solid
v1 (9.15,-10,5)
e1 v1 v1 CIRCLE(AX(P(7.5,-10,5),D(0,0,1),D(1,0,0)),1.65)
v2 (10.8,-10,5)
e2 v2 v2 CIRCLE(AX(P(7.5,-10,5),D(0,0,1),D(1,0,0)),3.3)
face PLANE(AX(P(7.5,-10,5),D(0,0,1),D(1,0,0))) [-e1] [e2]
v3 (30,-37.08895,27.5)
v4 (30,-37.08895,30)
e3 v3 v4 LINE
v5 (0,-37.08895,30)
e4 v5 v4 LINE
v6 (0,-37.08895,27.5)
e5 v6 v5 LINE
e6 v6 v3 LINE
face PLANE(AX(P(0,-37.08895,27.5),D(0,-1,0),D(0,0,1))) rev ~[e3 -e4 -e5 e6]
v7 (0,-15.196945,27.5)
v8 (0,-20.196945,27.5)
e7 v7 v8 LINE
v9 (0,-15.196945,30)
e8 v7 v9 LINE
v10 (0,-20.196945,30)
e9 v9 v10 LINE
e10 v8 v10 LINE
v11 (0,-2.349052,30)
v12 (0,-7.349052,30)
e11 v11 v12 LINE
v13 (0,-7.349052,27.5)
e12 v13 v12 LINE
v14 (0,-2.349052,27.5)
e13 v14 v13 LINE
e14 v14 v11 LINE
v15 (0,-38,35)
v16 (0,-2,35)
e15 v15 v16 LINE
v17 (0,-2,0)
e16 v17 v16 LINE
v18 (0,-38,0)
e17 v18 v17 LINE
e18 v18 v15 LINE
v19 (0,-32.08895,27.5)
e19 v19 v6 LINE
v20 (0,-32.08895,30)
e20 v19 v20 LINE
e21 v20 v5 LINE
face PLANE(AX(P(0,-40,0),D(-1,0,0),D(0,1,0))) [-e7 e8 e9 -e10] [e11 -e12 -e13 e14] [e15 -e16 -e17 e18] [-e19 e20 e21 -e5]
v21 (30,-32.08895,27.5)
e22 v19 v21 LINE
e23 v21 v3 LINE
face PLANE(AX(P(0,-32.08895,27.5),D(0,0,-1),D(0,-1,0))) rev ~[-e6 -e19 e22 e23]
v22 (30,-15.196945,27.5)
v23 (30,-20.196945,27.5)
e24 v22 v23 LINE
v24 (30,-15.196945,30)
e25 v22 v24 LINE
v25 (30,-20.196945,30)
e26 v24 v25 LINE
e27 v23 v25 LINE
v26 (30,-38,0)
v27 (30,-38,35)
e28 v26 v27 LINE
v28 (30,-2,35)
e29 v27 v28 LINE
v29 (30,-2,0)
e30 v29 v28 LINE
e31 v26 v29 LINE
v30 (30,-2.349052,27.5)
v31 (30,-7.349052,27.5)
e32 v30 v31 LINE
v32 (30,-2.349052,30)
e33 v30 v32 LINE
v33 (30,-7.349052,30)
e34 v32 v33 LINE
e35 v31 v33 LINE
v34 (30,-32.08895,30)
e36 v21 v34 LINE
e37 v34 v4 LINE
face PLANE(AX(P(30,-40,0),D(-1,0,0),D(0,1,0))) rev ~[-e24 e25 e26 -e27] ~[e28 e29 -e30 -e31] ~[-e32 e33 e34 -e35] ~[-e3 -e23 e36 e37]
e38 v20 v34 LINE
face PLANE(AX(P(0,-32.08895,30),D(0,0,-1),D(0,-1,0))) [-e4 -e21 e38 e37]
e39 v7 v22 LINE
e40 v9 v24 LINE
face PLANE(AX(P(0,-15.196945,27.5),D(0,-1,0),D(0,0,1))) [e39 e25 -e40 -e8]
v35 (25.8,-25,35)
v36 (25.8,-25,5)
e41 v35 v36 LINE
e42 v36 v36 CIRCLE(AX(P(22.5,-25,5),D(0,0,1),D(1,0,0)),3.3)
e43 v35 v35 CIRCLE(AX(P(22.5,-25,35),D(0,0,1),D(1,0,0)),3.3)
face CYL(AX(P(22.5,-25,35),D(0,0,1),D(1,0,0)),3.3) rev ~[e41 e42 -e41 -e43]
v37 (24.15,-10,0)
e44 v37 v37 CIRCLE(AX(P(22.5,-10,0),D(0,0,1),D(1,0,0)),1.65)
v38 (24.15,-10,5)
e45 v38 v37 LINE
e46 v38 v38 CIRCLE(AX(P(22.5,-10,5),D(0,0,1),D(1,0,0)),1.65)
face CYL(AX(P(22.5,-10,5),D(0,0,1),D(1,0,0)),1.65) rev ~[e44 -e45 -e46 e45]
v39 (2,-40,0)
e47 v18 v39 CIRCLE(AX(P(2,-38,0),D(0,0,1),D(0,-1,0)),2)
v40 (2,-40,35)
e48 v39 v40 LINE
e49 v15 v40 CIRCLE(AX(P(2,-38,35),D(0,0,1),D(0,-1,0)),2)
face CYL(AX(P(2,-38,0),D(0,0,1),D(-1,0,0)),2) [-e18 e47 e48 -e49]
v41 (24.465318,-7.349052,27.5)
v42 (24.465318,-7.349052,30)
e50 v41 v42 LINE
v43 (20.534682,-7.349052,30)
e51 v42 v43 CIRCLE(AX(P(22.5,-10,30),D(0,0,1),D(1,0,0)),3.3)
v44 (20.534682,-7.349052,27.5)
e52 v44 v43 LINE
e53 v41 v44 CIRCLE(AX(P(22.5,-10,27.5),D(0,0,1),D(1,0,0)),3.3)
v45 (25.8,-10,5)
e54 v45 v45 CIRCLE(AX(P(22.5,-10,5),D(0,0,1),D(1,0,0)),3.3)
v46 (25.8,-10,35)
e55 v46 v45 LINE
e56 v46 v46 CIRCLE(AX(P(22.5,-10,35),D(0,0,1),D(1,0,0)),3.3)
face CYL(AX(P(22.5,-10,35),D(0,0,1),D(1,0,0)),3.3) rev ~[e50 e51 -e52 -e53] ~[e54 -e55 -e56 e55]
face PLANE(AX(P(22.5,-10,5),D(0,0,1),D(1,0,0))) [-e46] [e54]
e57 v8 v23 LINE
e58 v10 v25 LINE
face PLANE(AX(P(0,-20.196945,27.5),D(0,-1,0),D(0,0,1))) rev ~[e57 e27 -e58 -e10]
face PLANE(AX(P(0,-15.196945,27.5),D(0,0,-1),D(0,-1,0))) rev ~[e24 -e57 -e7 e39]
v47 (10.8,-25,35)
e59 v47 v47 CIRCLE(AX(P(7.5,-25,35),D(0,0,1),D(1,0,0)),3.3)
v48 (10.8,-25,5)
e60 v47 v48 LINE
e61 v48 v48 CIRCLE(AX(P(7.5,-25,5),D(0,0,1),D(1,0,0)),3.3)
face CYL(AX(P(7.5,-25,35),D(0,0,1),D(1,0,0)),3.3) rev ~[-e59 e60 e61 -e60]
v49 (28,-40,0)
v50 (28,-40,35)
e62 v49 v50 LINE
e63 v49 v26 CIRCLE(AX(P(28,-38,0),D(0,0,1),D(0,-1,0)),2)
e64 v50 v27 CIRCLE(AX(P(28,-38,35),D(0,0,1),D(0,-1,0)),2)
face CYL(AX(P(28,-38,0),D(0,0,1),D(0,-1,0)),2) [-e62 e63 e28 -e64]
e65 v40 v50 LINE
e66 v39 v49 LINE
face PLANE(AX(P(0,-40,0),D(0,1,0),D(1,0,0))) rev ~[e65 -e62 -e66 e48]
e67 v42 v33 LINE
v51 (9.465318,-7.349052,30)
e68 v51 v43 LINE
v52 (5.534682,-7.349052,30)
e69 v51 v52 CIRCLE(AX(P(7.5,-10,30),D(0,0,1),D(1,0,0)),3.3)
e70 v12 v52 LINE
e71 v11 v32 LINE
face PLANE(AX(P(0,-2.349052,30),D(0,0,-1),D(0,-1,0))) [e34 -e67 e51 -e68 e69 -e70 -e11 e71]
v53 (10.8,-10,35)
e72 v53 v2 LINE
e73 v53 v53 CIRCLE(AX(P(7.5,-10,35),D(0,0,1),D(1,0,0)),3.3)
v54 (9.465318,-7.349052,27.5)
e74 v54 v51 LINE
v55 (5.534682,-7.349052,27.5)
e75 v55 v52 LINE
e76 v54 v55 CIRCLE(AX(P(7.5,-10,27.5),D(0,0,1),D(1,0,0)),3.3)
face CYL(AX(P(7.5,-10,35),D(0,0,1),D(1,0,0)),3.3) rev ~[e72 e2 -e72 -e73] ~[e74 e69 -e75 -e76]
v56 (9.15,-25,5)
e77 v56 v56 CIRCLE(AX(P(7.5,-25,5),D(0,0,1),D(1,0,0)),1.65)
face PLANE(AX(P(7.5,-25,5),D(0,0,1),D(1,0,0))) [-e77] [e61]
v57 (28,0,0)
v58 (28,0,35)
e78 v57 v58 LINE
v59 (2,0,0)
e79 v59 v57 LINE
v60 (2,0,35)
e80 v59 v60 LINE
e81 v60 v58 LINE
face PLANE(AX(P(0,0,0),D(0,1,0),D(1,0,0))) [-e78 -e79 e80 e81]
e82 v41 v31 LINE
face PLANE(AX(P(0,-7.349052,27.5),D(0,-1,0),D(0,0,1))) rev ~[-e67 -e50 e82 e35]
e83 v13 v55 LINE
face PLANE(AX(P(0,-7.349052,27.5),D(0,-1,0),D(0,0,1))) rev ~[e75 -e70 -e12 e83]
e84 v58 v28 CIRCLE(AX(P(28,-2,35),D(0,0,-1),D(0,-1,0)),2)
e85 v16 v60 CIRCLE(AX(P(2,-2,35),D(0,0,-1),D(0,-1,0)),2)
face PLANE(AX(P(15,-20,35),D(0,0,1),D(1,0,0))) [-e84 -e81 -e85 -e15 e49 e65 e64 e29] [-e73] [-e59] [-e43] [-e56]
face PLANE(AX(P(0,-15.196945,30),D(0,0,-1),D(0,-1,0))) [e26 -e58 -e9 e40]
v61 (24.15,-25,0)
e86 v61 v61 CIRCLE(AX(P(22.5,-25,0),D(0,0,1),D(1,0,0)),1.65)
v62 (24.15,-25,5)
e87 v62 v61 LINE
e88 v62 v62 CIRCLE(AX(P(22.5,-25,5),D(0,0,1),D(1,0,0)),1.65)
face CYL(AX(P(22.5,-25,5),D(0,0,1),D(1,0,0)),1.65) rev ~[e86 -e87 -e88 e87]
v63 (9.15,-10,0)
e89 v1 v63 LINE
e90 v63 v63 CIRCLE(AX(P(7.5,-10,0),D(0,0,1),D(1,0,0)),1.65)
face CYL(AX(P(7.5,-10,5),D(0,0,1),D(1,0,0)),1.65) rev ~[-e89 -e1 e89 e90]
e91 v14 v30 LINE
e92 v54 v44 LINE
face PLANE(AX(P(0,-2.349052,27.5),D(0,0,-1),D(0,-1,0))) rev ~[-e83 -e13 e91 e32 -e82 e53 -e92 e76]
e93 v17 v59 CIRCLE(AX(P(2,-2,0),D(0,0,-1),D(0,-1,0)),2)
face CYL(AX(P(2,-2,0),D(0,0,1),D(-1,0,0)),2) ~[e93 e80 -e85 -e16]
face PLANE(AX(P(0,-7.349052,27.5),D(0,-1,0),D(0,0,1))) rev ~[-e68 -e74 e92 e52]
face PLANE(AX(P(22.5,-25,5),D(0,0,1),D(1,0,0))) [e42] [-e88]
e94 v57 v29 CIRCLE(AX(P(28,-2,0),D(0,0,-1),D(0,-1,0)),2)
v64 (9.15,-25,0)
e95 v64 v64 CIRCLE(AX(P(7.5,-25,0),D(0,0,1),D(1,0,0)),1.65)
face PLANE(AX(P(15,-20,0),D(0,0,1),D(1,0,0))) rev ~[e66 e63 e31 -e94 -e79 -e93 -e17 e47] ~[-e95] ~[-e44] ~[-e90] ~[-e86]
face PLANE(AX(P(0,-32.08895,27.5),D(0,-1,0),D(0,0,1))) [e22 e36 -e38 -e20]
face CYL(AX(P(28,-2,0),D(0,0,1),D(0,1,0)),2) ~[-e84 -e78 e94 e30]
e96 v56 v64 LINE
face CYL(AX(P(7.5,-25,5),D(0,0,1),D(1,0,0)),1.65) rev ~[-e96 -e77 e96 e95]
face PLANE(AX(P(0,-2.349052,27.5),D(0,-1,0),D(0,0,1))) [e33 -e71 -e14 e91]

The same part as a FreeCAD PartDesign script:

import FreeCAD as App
import Part
import Sketcher
from FreeCAD import Vector
Q = App.Units.Quantity


def edges_at(feature, points):
    """Names of the edges that pass closest to the given points."""
    edges = feature.Shape.Edges
    near = lambda p: min(range(len(edges)), key=lambda i: edges[i].distToShape(Part.Vertex(*p))[0])
    return sorted({f"Edge{near(p) + 1}" for p in points})

doc = App.newDocument("Part")
body = doc.addObject("PartDesign::Body", "Body")

sketch1 = doc.addObject("Sketcher::SketchObject", "Sketch")
body.addObject(sketch1)
sketch1.AttachmentSupport = (doc.XY_Plane, [""])
sketch1.MapMode = "FlatFace"
sketch1.addGeometry([
    Part.LineSegment(Vector(0, 0, 0), Vector(0, -40, 0)),
    Part.LineSegment(Vector(0, -40, 0), Vector(30, -40, 0)),
    Part.LineSegment(Vector(30, -40, 0), Vector(30, 0, 0)),
    Part.LineSegment(Vector(30, 0, 0), Vector(0, 0, 0)),
], False)
sketch1.addConstraint([
    Sketcher.Constraint("Coincident", 0, 2, 1, 1),
    Sketcher.Constraint("Coincident", 1, 2, 2, 1),
    Sketcher.Constraint("Coincident", 2, 2, 3, 1),
    Sketcher.Constraint("Coincident", 3, 2, 0, 1),
    Sketcher.Constraint("Vertical", 0),
    Sketcher.Constraint("Horizontal", 1),
    Sketcher.Constraint("Vertical", 2),
    Sketcher.Constraint("Horizontal", 3),
    Sketcher.Constraint("Coincident", 3, 2, -1, 1),
    Sketcher.Constraint("DistanceX", 1, 1, 1, 2, Q("30 mm")),
    Sketcher.Constraint("DistanceY", 0, 2, 0, 1, Q("40 mm")),
])
pad1 = doc.addObject("PartDesign::Pad", "Pad")
body.addObject(pad1)
pad1.Profile = sketch1
pad1.Length = 35

sketch2 = doc.addObject("Sketcher::SketchObject", "Sketch001")
body.addObject(sketch2)
sketch2.AttachmentSupport = (doc.XY_Plane, [""])
sketch2.MapMode = "FlatFace"
sketch2.AttachmentOffset = App.Placement(Vector(0, 0, 35), App.Rotation())
sketch2.addGeometry([
    Part.Circle(Vector(7.5, -10, 0), Vector(0, 0, 1), 3.3),
    Part.Circle(Vector(22.5, -10, 0), Vector(0, 0, 1), 3.3),
    Part.Circle(Vector(7.5, -25, 0), Vector(0, 0, 1), 3.3),
    Part.Circle(Vector(22.5, -25, 0), Vector(0, 0, 1), 3.3),
], False)
sketch2.addConstraint([
    Sketcher.Constraint("Equal", 0, 1),
    Sketcher.Constraint("Equal", 1, 2),
    Sketcher.Constraint("Equal", 2, 3),
    Sketcher.Constraint("Horizontal", 0, 3, 1, 3),
    Sketcher.Constraint("Horizontal", 2, 3, 3, 3),
    Sketcher.Constraint("Vertical", 0, 3, 2, 3),
    Sketcher.Constraint("Vertical", 1, 3, 3, 3),
    Sketcher.Constraint("Diameter", 0, Q("6.6 mm")),
    Sketcher.Constraint("DistanceY", 0, 3, -1, 1, Q("10 mm")),
    Sketcher.Constraint("DistanceY", 2, 3, -1, 1, Q("25 mm")),
    Sketcher.Constraint("DistanceX", 0, 3, 1, 3, Q("15 mm")),
    Sketcher.Constraint("DistanceX", -1, 1, 0, 3, Q("7.5 mm")),
])
pocket1 = doc.addObject("PartDesign::Pocket", "Pocket")
body.addObject(pocket1)
pocket1.Profile = sketch2
pocket1.Length = 30

sketch3 = doc.addObject("Sketcher::SketchObject", "Sketch002")
body.addObject(sketch3)
sketch3.AttachmentSupport = (doc.YZ_Plane, [""])
sketch3.MapMode = "FlatFace"
sketch3.addGeometry([
    Part.LineSegment(Vector(-2.3, 30, 0), Vector(-2.3, 27.5, 0)),
    Part.LineSegment(Vector(-2.3, 27.5, 0), Vector(-7.3, 27.5, 0)),
    Part.LineSegment(Vector(-7.3, 27.5, 0), Vector(-7.3, 30, 0)),
    Part.LineSegment(Vector(-7.3, 30, 0), Vector(-2.3, 30, 0)),
    Part.LineSegment(Vector(-15.2, 30, 0), Vector(-15.2, 27.5, 0)),
    Part.LineSegment(Vector(-15.2, 27.5, 0), Vector(-20.2, 27.5, 0)),
    Part.LineSegment(Vector(-20.2, 27.5, 0), Vector(-20.2, 30, 0)),
    Part.LineSegment(Vector(-20.2, 30, 0), Vector(-15.2, 30, 0)),
    Part.LineSegment(Vector(-32.1, 30, 0), Vector(-32.1, 27.5, 0)),
    Part.LineSegment(Vector(-32.1, 27.5, 0), Vector(-37.1, 27.5, 0)),
    Part.LineSegment(Vector(-37.1, 27.5, 0), Vector(-37.1, 30, 0)),
    Part.LineSegment(Vector(-37.1, 30, 0), Vector(-32.1, 30, 0)),
], False)
sketch3.addConstraint([
    Sketcher.Constraint("Coincident", 0, 2, 1, 1),
    Sketcher.Constraint("Coincident", 1, 2, 2, 1),
    Sketcher.Constraint("Coincident", 2, 2, 3, 1),
    Sketcher.Constraint("Coincident", 3, 2, 0, 1),
    Sketcher.Constraint("Coincident", 4, 2, 5, 1),
    Sketcher.Constraint("Coincident", 5, 2, 6, 1),
    Sketcher.Constraint("Coincident", 6, 2, 7, 1),
    Sketcher.Constraint("Coincident", 7, 2, 4, 1),
    Sketcher.Constraint("Coincident", 8, 2, 9, 1),
    Sketcher.Constraint("Coincident", 9, 2, 10, 1),
    Sketcher.Constraint("Coincident", 10, 2, 11, 1),
    Sketcher.Constraint("Coincident", 11, 2, 8, 1),
    Sketcher.Constraint("Vertical", 0),
    Sketcher.Constraint("Horizontal", 1),
    Sketcher.Constraint("Vertical", 2),
    Sketcher.Constraint("Horizontal", 3),
    Sketcher.Constraint("Vertical", 4),
    Sketcher.Constraint("Horizontal", 5),
    Sketcher.Constraint("Vertical", 6),
    Sketcher.Constraint("Horizontal", 7),
    Sketcher.Constraint("Vertical", 8),
    Sketcher.Constraint("Horizontal", 9),
    Sketcher.Constraint("Vertical", 10),
    Sketcher.Constraint("Horizontal", 11),
    Sketcher.Constraint("Horizontal", 1, 2, 4, 2),
    Sketcher.Constraint("Horizontal", 3, 2, 6, 2),
    Sketcher.Constraint("Horizontal", 5, 2, 8, 2),
    Sketcher.Constraint("Horizontal", 7, 2, 10, 2),
    Sketcher.Constraint("Equal", 3, 5),
    Sketcher.Constraint("Equal", 7, 9),
    Sketcher.Constraint("DistanceX", 1, 2, 1, 1, Q("5 mm")),
    Sketcher.Constraint("DistanceY", 0, 2, 0, 1, Q("2.5 mm")),
    Sketcher.Constraint("DistanceY", -1, 1, 2, 2, Q("30 mm")),
    Sketcher.Constraint("DistanceX", 0, 2, -1, 1, Q("2.349052 mm")),
    Sketcher.Constraint("DistanceX", 8, 2, -1, 1, Q("32.08895 mm")),
    Sketcher.Constraint("DistanceX", 4, 2, -1, 1, Q("15.196945 mm")),
])
pocket2 = doc.addObject("PartDesign::Pocket", "Pocket001")
body.addObject(pocket2)
pocket2.Profile = sketch3
pocket2.Type = "ThroughAll"
pocket2.Reversed = True

sketch4 = doc.addObject("Sketcher::SketchObject", "Sketch003")
body.addObject(sketch4)
sketch4.AttachmentSupport = (doc.XY_Plane, [""])
sketch4.MapMode = "FlatFace"
sketch4.AttachmentOffset = App.Placement(Vector(0, 0, 5), App.Rotation())
sketch4.addGeometry(Part.Circle(Vector(7.5, -10, 0), Vector(0, 0, 1), 1.6), False)
sketch4.addConstraint([
    Sketcher.Constraint("Diameter", 0, Q("3.3 mm")),
    Sketcher.Constraint("DistanceY", 0, 3, -1, 1, Q("10 mm")),
    Sketcher.Constraint("DistanceX", -1, 1, 0, 3, Q("7.5 mm")),
])
pocket3 = doc.addObject("PartDesign::Pocket", "Pocket002")
body.addObject(pocket3)
pocket3.Profile = sketch4
pocket3.Type = "ThroughAll"

sketch5 = doc.addObject("Sketcher::SketchObject", "Sketch004")
body.addObject(sketch5)
sketch5.AttachmentSupport = (doc.XY_Plane, [""])
sketch5.MapMode = "FlatFace"
sketch5.AttachmentOffset = App.Placement(Vector(0, 0, 5), App.Rotation())
sketch5.addGeometry(Part.Circle(Vector(7.5, -25, 0), Vector(0, 0, 1), 1.6), False)
sketch5.addConstraint([
    Sketcher.Constraint("Diameter", 0, Q("3.3 mm")),
    Sketcher.Constraint("DistanceY", 0, 3, -1, 1, Q("25 mm")),
    Sketcher.Constraint("DistanceX", -1, 1, 0, 3, Q("7.5 mm")),
])
pocket4 = doc.addObject("PartDesign::Pocket", "Pocket003")
body.addObject(pocket4)
pocket4.Profile = sketch5
pocket4.Type = "ThroughAll"

sketch6 = doc.addObject("Sketcher::SketchObject", "Sketch005")
body.addObject(sketch6)
sketch6.AttachmentSupport = (doc.XY_Plane, [""])
sketch6.MapMode = "FlatFace"
sketch6.AttachmentOffset = App.Placement(Vector(0, 0, 5), App.Rotation())
sketch6.addGeometry(Part.Circle(Vector(22.5, -25, 0), Vector(0, 0, 1), 1.6), False)
sketch6.addConstraint([
    Sketcher.Constraint("Diameter", 0, Q("3.3 mm")),
    Sketcher.Constraint("DistanceY", 0, 3, -1, 1, Q("25 mm")),
    Sketcher.Constraint("DistanceX", -1, 1, 0, 3, Q("22.5 mm")),
])
pocket5 = doc.addObject("PartDesign::Pocket", "Pocket004")
body.addObject(pocket5)
pocket5.Profile = sketch6
pocket5.Type = "ThroughAll"

sketch7 = doc.addObject("Sketcher::SketchObject", "Sketch006")
body.addObject(sketch7)
sketch7.AttachmentSupport = (doc.XY_Plane, [""])
sketch7.MapMode = "FlatFace"
sketch7.AttachmentOffset = App.Placement(Vector(0, 0, 5), App.Rotation())
sketch7.addGeometry(Part.Circle(Vector(22.5, -10, 0), Vector(0, 0, 1), 1.6), False)
sketch7.addConstraint([
    Sketcher.Constraint("Diameter", 0, Q("3.3 mm")),
    Sketcher.Constraint("DistanceY", 0, 3, -1, 1, Q("10 mm")),
    Sketcher.Constraint("DistanceX", -1, 1, 0, 3, Q("22.5 mm")),
])
pocket6 = doc.addObject("PartDesign::Pocket", "Pocket005")
body.addObject(pocket6)
pocket6.Profile = sketch7
pocket6.Type = "ThroughAll"
doc.recompute()

fillet = doc.addObject("PartDesign::Fillet", "Fillet")
body.addObject(fillet)
fillet.Base = (pocket6, edges_at(pocket6, [
    (0, 0, 17.5),
    (30, 0, 17.5),
    (30, -40, 17.5),
    (0, -40, 17.5),
]))
fillet.Radius = 2

doc.recompute()
